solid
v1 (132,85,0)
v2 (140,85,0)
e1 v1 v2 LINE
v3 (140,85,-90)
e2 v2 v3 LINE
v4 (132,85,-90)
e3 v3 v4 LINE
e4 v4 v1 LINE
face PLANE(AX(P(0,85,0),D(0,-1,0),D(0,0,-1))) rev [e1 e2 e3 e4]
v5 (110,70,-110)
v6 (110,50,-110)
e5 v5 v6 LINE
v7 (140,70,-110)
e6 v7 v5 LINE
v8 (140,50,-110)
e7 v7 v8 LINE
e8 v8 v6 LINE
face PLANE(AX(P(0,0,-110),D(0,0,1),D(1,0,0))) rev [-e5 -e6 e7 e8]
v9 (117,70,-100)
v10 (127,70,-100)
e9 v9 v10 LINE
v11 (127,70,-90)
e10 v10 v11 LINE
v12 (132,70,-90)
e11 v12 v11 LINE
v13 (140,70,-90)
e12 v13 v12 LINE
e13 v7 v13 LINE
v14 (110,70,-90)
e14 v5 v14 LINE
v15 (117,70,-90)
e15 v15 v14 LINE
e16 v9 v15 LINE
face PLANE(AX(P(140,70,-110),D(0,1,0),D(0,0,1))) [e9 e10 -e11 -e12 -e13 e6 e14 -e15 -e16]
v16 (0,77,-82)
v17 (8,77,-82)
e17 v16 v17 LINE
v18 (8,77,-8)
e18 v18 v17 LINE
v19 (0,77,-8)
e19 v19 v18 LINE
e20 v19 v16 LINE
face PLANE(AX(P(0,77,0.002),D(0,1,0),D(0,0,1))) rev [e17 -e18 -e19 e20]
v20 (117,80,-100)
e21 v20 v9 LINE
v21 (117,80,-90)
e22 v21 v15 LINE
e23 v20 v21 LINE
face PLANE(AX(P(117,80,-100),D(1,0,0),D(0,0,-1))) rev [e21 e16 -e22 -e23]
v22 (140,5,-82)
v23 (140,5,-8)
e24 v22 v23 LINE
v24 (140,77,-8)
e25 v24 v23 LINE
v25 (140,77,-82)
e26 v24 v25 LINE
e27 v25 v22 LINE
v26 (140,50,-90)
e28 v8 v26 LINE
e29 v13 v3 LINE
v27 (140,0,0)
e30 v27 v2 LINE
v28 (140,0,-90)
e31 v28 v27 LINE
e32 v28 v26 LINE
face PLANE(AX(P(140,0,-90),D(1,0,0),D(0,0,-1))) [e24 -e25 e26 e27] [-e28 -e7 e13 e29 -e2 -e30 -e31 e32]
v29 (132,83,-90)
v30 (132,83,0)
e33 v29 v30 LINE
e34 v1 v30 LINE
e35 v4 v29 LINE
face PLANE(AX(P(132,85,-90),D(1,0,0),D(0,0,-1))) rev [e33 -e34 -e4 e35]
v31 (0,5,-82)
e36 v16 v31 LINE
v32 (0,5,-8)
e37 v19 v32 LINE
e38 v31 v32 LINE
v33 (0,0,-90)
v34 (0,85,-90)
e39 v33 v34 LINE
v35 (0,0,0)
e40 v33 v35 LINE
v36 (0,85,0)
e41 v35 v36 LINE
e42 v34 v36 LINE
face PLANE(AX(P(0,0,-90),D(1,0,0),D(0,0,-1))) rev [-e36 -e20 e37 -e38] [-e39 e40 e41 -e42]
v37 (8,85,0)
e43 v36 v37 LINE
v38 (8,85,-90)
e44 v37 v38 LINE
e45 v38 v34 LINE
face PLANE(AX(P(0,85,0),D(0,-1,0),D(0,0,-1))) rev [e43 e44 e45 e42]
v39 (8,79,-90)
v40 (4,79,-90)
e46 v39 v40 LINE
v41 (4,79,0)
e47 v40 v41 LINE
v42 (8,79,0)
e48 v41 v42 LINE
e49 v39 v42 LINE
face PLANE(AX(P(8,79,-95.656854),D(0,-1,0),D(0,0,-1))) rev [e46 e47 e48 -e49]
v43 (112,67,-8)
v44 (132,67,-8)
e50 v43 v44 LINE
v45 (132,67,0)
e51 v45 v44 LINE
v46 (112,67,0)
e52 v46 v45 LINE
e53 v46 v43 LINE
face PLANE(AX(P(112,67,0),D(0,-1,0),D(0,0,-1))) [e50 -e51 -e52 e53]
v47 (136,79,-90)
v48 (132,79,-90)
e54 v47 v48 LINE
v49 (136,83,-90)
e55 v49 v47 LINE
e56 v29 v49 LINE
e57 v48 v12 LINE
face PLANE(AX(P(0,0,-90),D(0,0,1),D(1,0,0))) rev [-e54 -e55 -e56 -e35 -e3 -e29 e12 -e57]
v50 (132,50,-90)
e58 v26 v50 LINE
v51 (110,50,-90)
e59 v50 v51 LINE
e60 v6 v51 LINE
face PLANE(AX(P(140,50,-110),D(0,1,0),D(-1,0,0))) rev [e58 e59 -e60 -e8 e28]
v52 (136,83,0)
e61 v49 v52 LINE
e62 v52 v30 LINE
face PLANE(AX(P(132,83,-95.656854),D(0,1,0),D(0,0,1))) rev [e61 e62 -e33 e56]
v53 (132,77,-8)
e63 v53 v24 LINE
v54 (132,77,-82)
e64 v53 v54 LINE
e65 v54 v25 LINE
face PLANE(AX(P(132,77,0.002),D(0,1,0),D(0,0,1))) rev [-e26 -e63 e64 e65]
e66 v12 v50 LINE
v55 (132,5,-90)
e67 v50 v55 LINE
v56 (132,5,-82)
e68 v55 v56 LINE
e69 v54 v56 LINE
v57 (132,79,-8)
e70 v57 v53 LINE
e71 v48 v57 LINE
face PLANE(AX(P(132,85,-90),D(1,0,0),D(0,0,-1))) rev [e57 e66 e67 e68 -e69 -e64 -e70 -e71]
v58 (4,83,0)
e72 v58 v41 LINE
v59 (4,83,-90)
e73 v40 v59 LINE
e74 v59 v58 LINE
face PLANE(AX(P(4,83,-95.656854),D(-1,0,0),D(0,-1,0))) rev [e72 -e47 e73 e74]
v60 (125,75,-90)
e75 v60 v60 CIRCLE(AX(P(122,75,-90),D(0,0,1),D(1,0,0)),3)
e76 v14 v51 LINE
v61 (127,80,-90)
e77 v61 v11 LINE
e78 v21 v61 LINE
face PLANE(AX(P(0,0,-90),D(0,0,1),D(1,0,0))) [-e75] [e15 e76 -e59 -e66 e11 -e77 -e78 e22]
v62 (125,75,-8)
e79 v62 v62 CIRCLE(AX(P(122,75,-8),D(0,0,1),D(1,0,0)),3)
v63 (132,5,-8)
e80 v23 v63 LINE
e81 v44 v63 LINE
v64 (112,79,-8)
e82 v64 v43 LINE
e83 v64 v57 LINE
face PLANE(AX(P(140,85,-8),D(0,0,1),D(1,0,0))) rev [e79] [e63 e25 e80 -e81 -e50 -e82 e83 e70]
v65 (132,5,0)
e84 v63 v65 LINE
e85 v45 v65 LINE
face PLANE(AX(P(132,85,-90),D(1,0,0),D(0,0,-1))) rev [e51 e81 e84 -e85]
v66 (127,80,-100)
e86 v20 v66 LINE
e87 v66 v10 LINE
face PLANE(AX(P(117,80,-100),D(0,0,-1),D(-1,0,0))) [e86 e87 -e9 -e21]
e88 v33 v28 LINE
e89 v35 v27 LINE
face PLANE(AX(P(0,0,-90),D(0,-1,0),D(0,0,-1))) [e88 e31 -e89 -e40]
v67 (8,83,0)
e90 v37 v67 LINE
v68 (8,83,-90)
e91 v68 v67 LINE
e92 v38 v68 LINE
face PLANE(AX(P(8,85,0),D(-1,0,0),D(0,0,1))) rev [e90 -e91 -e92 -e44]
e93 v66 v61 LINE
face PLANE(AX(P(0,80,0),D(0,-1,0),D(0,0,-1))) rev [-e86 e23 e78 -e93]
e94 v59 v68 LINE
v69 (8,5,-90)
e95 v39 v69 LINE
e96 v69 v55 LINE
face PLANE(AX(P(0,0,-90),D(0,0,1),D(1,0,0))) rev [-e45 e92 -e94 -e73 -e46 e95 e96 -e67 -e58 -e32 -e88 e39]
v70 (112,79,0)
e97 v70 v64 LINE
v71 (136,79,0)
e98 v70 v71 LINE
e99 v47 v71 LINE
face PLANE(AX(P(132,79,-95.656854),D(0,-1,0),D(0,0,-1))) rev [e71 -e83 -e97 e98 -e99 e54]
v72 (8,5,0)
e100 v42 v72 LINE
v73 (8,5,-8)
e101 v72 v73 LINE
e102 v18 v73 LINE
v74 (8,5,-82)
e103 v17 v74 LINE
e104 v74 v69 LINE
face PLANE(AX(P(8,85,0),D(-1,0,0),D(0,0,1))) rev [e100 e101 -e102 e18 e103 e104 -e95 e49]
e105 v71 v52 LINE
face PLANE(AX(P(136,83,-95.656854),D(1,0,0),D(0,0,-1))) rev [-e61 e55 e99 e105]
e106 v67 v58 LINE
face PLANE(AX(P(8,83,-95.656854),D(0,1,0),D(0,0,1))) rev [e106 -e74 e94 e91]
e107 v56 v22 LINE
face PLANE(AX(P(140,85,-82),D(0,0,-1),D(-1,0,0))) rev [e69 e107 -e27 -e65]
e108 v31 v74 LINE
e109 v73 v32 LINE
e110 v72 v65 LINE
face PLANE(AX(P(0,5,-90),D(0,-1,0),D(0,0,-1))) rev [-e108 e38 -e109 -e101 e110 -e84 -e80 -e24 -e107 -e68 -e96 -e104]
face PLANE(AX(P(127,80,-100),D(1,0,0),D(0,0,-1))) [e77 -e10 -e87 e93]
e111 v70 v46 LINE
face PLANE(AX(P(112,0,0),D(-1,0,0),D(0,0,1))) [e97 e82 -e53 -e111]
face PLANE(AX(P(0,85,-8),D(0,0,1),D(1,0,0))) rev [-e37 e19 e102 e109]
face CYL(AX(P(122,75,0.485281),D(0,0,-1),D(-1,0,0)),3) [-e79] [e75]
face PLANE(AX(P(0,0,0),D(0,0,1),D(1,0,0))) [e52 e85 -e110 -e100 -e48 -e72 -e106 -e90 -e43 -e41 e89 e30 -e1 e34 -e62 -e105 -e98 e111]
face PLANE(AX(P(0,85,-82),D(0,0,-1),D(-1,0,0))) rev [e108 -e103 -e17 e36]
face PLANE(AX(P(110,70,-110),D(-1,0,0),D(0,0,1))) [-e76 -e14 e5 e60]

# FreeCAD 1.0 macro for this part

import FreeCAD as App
import Part
import Sketcher

doc = App.newDocument("Part")
body = doc.addObject("PartDesign::Body", "Body")

# Sketch on XY plane
sketch1 = body.newObject("Sketcher::SketchObject", "Sketch")
sketch1.AttachmentSupport = (doc.getObject("XY_Plane"), [""])
sketch1.MapMode = "FlatFace"
sketch1.addGeometry([
    Part.LineSegment(App.Vector(0, 5, 0), App.Vector(0, 0, 0)),
    Part.LineSegment(App.Vector(0, 0, 0), App.Vector(140, 0, 0)),
    Part.LineSegment(App.Vector(140, 0, 0), App.Vector(140, 5, 0)),
    Part.LineSegment(App.Vector(140, 5, 0), App.Vector(0, 5, 0)),
], False)
sketch1.addConstraint([
    Sketcher.Constraint("Coincident", 0, 2, 1, 1),
    Sketcher.Constraint("Coincident", 1, 2, 2, 1),
    Sketcher.Constraint("Coincident", 2, 2, 3, 1),
    Sketcher.Constraint("Coincident", 3, 2, 0, 1),
    Sketcher.Constraint("Vertical", 0),
    Sketcher.Constraint("Horizontal", 1),
    Sketcher.Constraint("Vertical", 2),
    Sketcher.Constraint("Horizontal", 3),
    Sketcher.Constraint("Coincident", 0, 2, -1, 1),
    Sketcher.Constraint("DistanceX", 1, 1, 1, 2, 140.0),
    Sketcher.Constraint("DistanceY", 0, 2, 0, 1, 5.0),
])
pad1 = body.newObject("PartDesign::Pad", "Pad")
pad1.Profile = sketch1
pad1.Length = 90
pad1.Reversed = True

# Sketch on XZ plane
sketch2 = body.newObject("Sketcher::SketchObject", "Sketch001")
sketch2.AttachmentSupport = (doc.getObject("XZ_Plane"), [""])
sketch2.MapMode = "FlatFace"
sketch2.AttachmentOffset = App.Placement(App.Vector(0, 0, -5), App.Rotation())
sketch2.addGeometry([
    Part.LineSegment(App.Vector(0, -8, 0), App.Vector(0, 0, 0)),  # 0
    Part.LineSegment(App.Vector(0, 0, 0), App.Vector(8, 0, 0)),  # 1
    Part.LineSegment(App.Vector(8, 0, 0), App.Vector(8, -8, 0)),  # 2
    Part.LineSegment(App.Vector(8, -8, 0), App.Vector(0, -8, 0)),  # 3
    Part.LineSegment(App.Vector(0, -90, 0), App.Vector(0, -82, 0)),  # 4
    Part.LineSegment(App.Vector(0, -82, 0), App.Vector(8, -82, 0)),  # 5
    Part.LineSegment(App.Vector(8, -82, 0), App.Vector(8, -90, 0)),  # 6
    Part.LineSegment(App.Vector(8, -90, 0), App.Vector(0, -90, 0)),  # 7
    Part.LineSegment(App.Vector(132, -90, 0), App.Vector(132, -82, 0)),  # 8
    Part.LineSegment(App.Vector(132, -82, 0), App.Vector(140, -82, 0)),  # 9
    Part.LineSegment(App.Vector(140, -82, 0), App.Vector(140, -90, 0)),  # 10
    Part.LineSegment(App.Vector(140, -90, 0), App.Vector(132, -90, 0)),  # 11
    Part.LineSegment(App.Vector(132, -8, 0), App.Vector(132, 0, 0)),  # 12
    Part.LineSegment(App.Vector(132, 0, 0), App.Vector(140, 0, 0)),  # 13
    Part.LineSegment(App.Vector(140, 0, 0), App.Vector(140, -8, 0)),  # 14
    Part.LineSegment(App.Vector(140, -8, 0), App.Vector(132, -8, 0)),  # 15
], False)
sketch2.addConstraint([
    Sketcher.Constraint("Coincident", 0, 2, 1, 1),
    Sketcher.Constraint("Coincident", 1, 2, 2, 1),
    Sketcher.Constraint("Coincident", 2, 2, 3, 1),
    Sketcher.Constraint("Coincident", 3, 2, 0, 1),
    Sketcher.Constraint("Coincident", 4, 2, 5, 1),
    Sketcher.Constraint("Coincident", 5, 2, 6, 1),
    Sketcher.Constraint("Coincident", 6, 2, 7, 1),
    Sketcher.Constraint("Coincident", 7, 2, 4, 1),
    Sketcher.Constraint("Coincident", 8, 2, 9, 1),
    Sketcher.Constraint("Coincident", 9, 2, 10, 1),
    Sketcher.Constraint("Coincident", 10, 2, 11, 1),
    Sketcher.Constraint("Coincident", 11, 2, 8, 1),
    Sketcher.Constraint("Coincident", 12, 2, 13, 1),
    Sketcher.Constraint("Coincident", 13, 2, 14, 1),
    Sketcher.Constraint("Coincident", 14, 2, 15, 1),
    Sketcher.Constraint("Coincident", 15, 2, 12, 1),
    Sketcher.Constraint("Vertical", 0),
    Sketcher.Constraint("Horizontal", 1),
    Sketcher.Constraint("Vertical", 2),
    Sketcher.Constraint("Horizontal", 3),
    Sketcher.Constraint("Vertical", 4),
    Sketcher.Constraint("Horizontal", 5),
    Sketcher.Constraint("Vertical", 6),
    Sketcher.Constraint("Horizontal", 7),
    Sketcher.Constraint("Vertical", 8),
    Sketcher.Constraint("Horizontal", 9),
    Sketcher.Constraint("Vertical", 10),
    Sketcher.Constraint("Horizontal", 11),
    Sketcher.Constraint("Vertical", 12),
    Sketcher.Constraint("Horizontal", 13),
    Sketcher.Constraint("Vertical", 14),
    Sketcher.Constraint("Horizontal", 15),
    Sketcher.Constraint("Coincident", 0, 2, -1, 1),
    Sketcher.Constraint("PointOnObject", 4, 2, -2),
    Sketcher.Constraint("PointOnObject", 12, 2, -1),
    Sketcher.Constraint("Horizontal", 5, 2, 8, 2),
    Sketcher.Constraint("Horizontal", 7, 2, 10, 2),
    Sketcher.Constraint("Horizontal", 3, 2, 14, 2),
    Sketcher.Constraint("Vertical", 2, 2, 5, 2),
    Sketcher.Constraint("Vertical", 11, 2, 12, 2),
    Sketcher.Constraint("Vertical", 10, 2, 13, 2),
    Sketcher.Constraint("Equal", 7, 9),
    Sketcher.Constraint("Equal", 15, 0),
    Sketcher.Constraint("Equal", 2, 4),
    Sketcher.Constraint("DistanceX", 1, 1, 1, 2, 8.0),
    Sketcher.Constraint("DistanceY", 4, 2, -1, 1, 82.0),
    Sketcher.Constraint("DistanceX", -1, 1, 8, 2, 132.0),
])
pad2 = body.newObject("PartDesign::Pad", "Pad001")
pad2.Profile = sketch2
pad2.Length = 80
pad2.Reversed = True

# Sketch on XY plane
sketch3 = body.newObject("Sketcher::SketchObject", "Sketch002")
sketch3.AttachmentSupport = (doc.getObject("XY_Plane"), [""])
sketch3.MapMode = "FlatFace"
sketch3.AttachmentOffset = App.Placement(App.Vector(0, 0, -82), App.Rotation())
sketch3.addGeometry([
    Part.LineSegment(App.Vector(0, 85, 0), App.Vector(0, 77, 0)),
    Part.LineSegment(App.Vector(0, 77, 0), App.Vector(8, 77, 0)),
    Part.LineSegment(App.Vector(8, 77, 0), App.Vector(8, 85, 0)),
    Part.LineSegment(App.Vector(8, 85, 0), App.Vector(0, 85, 0)),
], False)
sketch3.addConstraint([
    Sketcher.Constraint("Coincident", 0, 2, 1, 1),
    Sketcher.Constraint("Coincident", 1, 2, 2, 1),
    Sketcher.Constraint("Coincident", 2, 2, 3, 1),
    Sketcher.Constraint("Coincident", 3, 2, 0, 1),
    Sketcher.Constraint("Vertical", 0),
    Sketcher.Constraint("Horizontal", 1),
    Sketcher.Constraint("Vertical", 2),
    Sketcher.Constraint("Horizontal", 3),
    Sketcher.Constraint("PointOnObject", 0, 2, -2),
    Sketcher.Constraint("Equal", 3, 0),
    Sketcher.Constraint("DistanceX", 1, 1, 1, 2, 8.0),
    Sketcher.Constraint("DistanceY", -1, 1, 0, 2, 77.0),
])
pad3 = body.newObject("PartDesign::Pad", "Pad002")
pad3.Profile = sketch3
pad3.Type = "UpToFirst"

# Sketch on XY plane
sketch4 = body.newObject("Sketcher::SketchObject", "Sketch003")
sketch4.AttachmentSupport = (doc.getObject("XY_Plane"), [""])
sketch4.MapMode = "FlatFace"
sketch4.AttachmentOffset = App.Placement(App.Vector(0, 0, -82), App.Rotation())
sketch4.addGeometry([
    Part.LineSegment(App.Vector(132, 85, 0), App.Vector(132, 77, 0)),
    Part.LineSegment(App.Vector(132, 77, 0), App.Vector(140, 77, 0)),
    Part.LineSegment(App.Vector(140, 77, 0), App.Vector(140, 85, 0)),
    Part.LineSegment(App.Vector(140, 85, 0), App.Vector(132, 85, 0)),
], False)
sketch4.addConstraint([
    Sketcher.Constraint("Coincident", 0, 2, 1, 1),
    Sketcher.Constraint("Coincident", 1, 2, 2, 1),
    Sketcher.Constraint("Coincident", 2, 2, 3, 1),
    Sketcher.Constraint("Coincident", 3, 2, 0, 1),
    Sketcher.Constraint("Vertical", 0),
    Sketcher.Constraint("Horizontal", 1),
    Sketcher.Constraint("Vertical", 2),
    Sketcher.Constraint("Horizontal", 3),
    Sketcher.Constraint("Equal", 3, 0),
    Sketcher.Constraint("DistanceX", 1, 1, 1, 2, 8.0),
    Sketcher.Constraint("DistanceX", -1, 1, 0, 2, 132.0),
    Sketcher.Constraint("DistanceY", -1, 1, 0, 2, 77.0),
])
pad4 = body.newObject("PartDesign::Pad", "Pad003")
pad4.Profile = sketch4
pad4.Type = "UpToFirst"

# Sketch on XY plane
sketch5 = body.newObject("Sketcher::SketchObject", "Sketch004")
sketch5.AttachmentSupport = (doc.getObject("XY_Plane"), [""])
sketch5.MapMode = "FlatFace"
sketch5.addGeometry([
    Part.LineSegment(App.Vector(4, 83, 0), App.Vector(4, 79, 0)),  # 0
    Part.LineSegment(App.Vector(4, 79, 0), App.Vector(8, 79, 0)),  # 1
    Part.LineSegment(App.Vector(8, 79, 0), App.Vector(8, 83, 0)),  # 2
    Part.LineSegment(App.Vector(8, 83, 0), App.Vector(4, 83, 0)),  # 3
    Part.LineSegment(App.Vector(132, 83, 0), App.Vector(132, 79, 0)),  # 4
    Part.LineSegment(App.Vector(132, 79, 0), App.Vector(136, 79, 0)),  # 5
    Part.LineSegment(App.Vector(136, 79, 0), App.Vector(136, 83, 0)),  # 6
    Part.LineSegment(App.Vector(136, 83, 0), App.Vector(132, 83, 0)),  # 7
], False)
sketch5.addConstraint([
    Sketcher.Constraint("Coincident", 0, 2, 1, 1),
    Sketcher.Constraint("Coincident", 1, 2, 2, 1),
    Sketcher.Constraint("Coincident", 2, 2, 3, 1),
    Sketcher.Constraint("Coincident", 3, 2, 0, 1),
    Sketcher.Constraint("Coincident", 4, 2, 5, 1),
    Sketcher.Constraint("Coincident", 5, 2, 6, 1),
    Sketcher.Constraint("Coincident", 6, 2, 7, 1),
    Sketcher.Constraint("Coincident", 7, 2, 4, 1),
    Sketcher.Constraint("Vertical", 0),
    Sketcher.Constraint("Horizontal", 1),
    Sketcher.Constraint("Vertical", 2),
    Sketcher.Constraint("Horizontal", 3),
    Sketcher.Constraint("Vertical", 4),
    Sketcher.Constraint("Horizontal", 5),
    Sketcher.Constraint("Vertical", 6),
    Sketcher.Constraint("Horizontal", 7),
    Sketcher.Constraint("Horizontal", 1, 2, 4, 2),
    Sketcher.Constraint("Horizontal", 3, 2, 6, 2),
    Sketcher.Constraint("Equal", 3, 5),
    Sketcher.Constraint("Equal", 7, 0),
    Sketcher.Constraint("DistanceX", 1, 1, 1, 2, 4.0),
    Sketcher.Constraint("DistanceX", -1, 1, 0, 2, 4.0),
    Sketcher.Constraint("DistanceY", -1, 1, 0, 2, 79.0),
    Sketcher.Constraint("DistanceX", -1, 1, 4, 2, 132.0),
])
pocket1 = body.newObject("PartDesign::Pocket", "Pocket")
pocket1.Profile = sketch5
pocket1.Length = 90

# Sketch on XY plane
sketch6 = body.newObject("Sketcher::SketchObject", "Sketch005")
sketch6.AttachmentSupport = (doc.getObject("XY_Plane"), [""])
sketch6.MapMode = "FlatFace"
sketch6.AttachmentOffset = App.Placement(App.Vector(0, 0, -90), App.Rotation())
sketch6.addGeometry([
    Part.LineSegment(App.Vector(140, 70, 0), App.Vector(140, 50, 0)),
    Part.LineSegment(App.Vector(140, 50, 0), App.Vector(110, 50, 0)),
    Part.LineSegment(App.Vector(110, 50, 0), App.Vector(110, 70, 0)),
    Part.LineSegment(App.Vector(110, 70, 0), App.Vector(140, 70, 0)),
], False)
sketch6.addConstraint([
    Sketcher.Constraint("Coincident", 0, 2, 1, 1),
    Sketcher.Constraint("Coincident", 1, 2, 2, 1),
    Sketcher.Constraint("Coincident", 2, 2, 3, 1),
    Sketcher.Constraint("Coincident", 3, 2, 0, 1),
    Sketcher.Constraint("Vertical", 0),
    Sketcher.Constraint("Horizontal", 1),
    Sketcher.Constraint("Vertical", 2),
    Sketcher.Constraint("Horizontal", 3),
    Sketcher.Constraint("DistanceX", 1, 2, 1, 1, 30.0),
    Sketcher.Constraint("DistanceY", 0, 2, 0, 1, 20.0),
    Sketcher.Constraint("DistanceX", -1, 1, 0, 2, 140.0),
    Sketcher.Constraint("DistanceY", -1, 1, 0, 2, 50.0),
])
pad5 = body.newObject("PartDesign::Pad", "Pad004")
pad5.Profile = sketch6
pad5.Length = 20
pad5.Reversed = True

# Sketch on XZ plane
sketch7 = body.newObject("Sketcher::SketchObject", "Sketch006")
sketch7.AttachmentSupport = (doc.getObject("XZ_Plane"), [""])
sketch7.MapMode = "FlatFace"
sketch7.AttachmentOffset = App.Placement(App.Vector(0, 0, -70), App.Rotation())
sketch7.addGeometry([
    Part.LineSegment(App.Vector(117, -100, 0), App.Vector(117, -90, 0)),
    Part.LineSegment(App.Vector(117, -90, 0), App.Vector(127, -90, 0)),
    Part.LineSegment(App.Vector(127, -90, 0), App.Vector(127, -100, 0)),
    Part.LineSegment(App.Vector(127, -100, 0), App.Vector(117, -100, 0)),
], False)
sketch7.addConstraint([
    Sketcher.Constraint("Coincident", 0, 2, 1, 1),
    Sketcher.Constraint("Coincident", 1, 2, 2, 1),
    Sketcher.Constraint("Coincident", 2, 2, 3, 1),
    Sketcher.Constraint("Coincident", 3, 2, 0, 1),
    Sketcher.Constraint("Vertical", 0),
    Sketcher.Constraint("Horizontal", 1),
    Sketcher.Constraint("Vertical", 2),
    Sketcher.Constraint("Horizontal", 3),
    Sketcher.Constraint("Equal", 3, 0),
    Sketcher.Constraint("DistanceX", 1, 1, 1, 2, 10.0),
    Sketcher.Constraint("DistanceX", -1, 1, 0, 2, 117.0),
    Sketcher.Constraint("DistanceY", 0, 2, -1, 1, 90.0),
])
pad6 = body.newObject("PartDesign::Pad", "Pad005")
pad6.Profile = sketch7
pad6.Length = 10
pad6.Reversed = True

# Sketch on XY plane
sketch8 = body.newObject("Sketcher::SketchObject", "Sketch007")
sketch8.AttachmentSupport = (doc.getObject("XY_Plane"), [""])
sketch8.MapMode = "FlatFace"
sketch8.AttachmentOffset = App.Placement(App.Vector(0, 0, -90), App.Rotation())
sketch8.addGeometry(Part.Circle(App.Vector(122, 75, 0), App.Vector(0, 0, 1), 3), False)
sketch8.addConstraint([
    Sketcher.Constraint("Diameter", 0, 6.0),
    Sketcher.Constraint("DistanceX", -1, 1, 0, 3, 122.0),
    Sketcher.Constraint("DistanceY", -1, 1, 0, 3, 75.0),
])
pad7 = body.newObject("PartDesign::Pad", "Pad006")
pad7.Profile = sketch8
pad7.Length = 82

# Sketch on YZ plane
sketch9 = body.newObject("Sketcher::SketchObject", "Sketch008")
sketch9.AttachmentSupport = (doc.getObject("YZ_Plane"), [""])
sketch9.MapMode = "FlatFace"
sketch9.AttachmentOffset = App.Placement(App.Vector(0, 0, 132), App.Rotation())
sketch9.addGeometry([
    Part.LineSegment(App.Vector(79, -8, 0), App.Vector(67, -8, 0)),
    Part.LineSegment(App.Vector(67, -8, 0), App.Vector(67, 0, 0)),
    Part.LineSegment(App.Vector(67, 0, 0), App.Vector(79, 0, 0)),
    Part.LineSegment(App.Vector(79, 0, 0), App.Vector(79, -8, 0)),
], False)
sketch9.addConstraint([
    Sketcher.Constraint("Coincident", 0, 2, 1, 1),
    Sketcher.Constraint("Coincident", 1, 2, 2, 1),
    Sketcher.Constraint("Coincident", 2, 2, 3, 1),
    Sketcher.Constraint("Coincident", 3, 2, 0, 1),
    Sketcher.Constraint("Horizontal", 0),
    Sketcher.Constraint("Vertical", 1),
    Sketcher.Constraint("Horizontal", 2),
    Sketcher.Constraint("Vertical", 3),
    Sketcher.Constraint("PointOnObject", 1, 2, -1),
    Sketcher.Constraint("DistanceX", 0, 2, 0, 1, 12.0),
    Sketcher.Constraint("DistanceY", 1, 1, 1, 2, 8.0),
    Sketcher.Constraint("DistanceX", -1, 1, 0, 2, 67.0),
])
pad8 = body.newObject("PartDesign::Pad", "Pad007")
pad8.Profile = sketch9
pad8.Length = 20
pad8.Reversed = True

doc.recompute()
